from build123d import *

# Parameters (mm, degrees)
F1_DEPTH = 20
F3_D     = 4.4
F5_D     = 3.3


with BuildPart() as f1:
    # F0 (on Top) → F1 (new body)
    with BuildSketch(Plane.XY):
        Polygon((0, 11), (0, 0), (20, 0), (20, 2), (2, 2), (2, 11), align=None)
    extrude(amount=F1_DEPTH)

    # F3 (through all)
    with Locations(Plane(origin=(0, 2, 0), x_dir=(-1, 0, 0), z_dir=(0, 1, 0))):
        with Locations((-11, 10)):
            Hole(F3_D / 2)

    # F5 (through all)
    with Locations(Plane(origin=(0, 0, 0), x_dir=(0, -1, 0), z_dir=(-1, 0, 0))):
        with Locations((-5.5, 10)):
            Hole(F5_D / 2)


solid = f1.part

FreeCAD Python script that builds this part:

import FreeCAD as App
import Part
import Sketcher

V = App.Vector
Q = App.Units.Quantity


def add_polygon(sketch, points):
    """Adds a closed chain of lines whose ends are joined by coincident constraints."""
    first, n = sketch.GeometryCount, len(points)
    for a, b in zip(points, points[1:] + points[:1]):
        sketch.addGeometry(Part.LineSegment(App.Vector(*a, 0), App.Vector(*b, 0)), False)
    for i in range(n):
        sketch.addConstraint(Sketcher.Constraint("Coincident", first + i, 2, first + (i + 1) % n, 1))

doc = App.newDocument("Part")
params = doc.addObject("Spreadsheet::Sheet", "Params")
for row, (alias, value) in enumerate([
    ("sketch1_width", "20 mm"),
    ("sketch1_width2", "18 mm"),
    ("sketch1_height", "11 mm"),
    ("pad1_length", "20 mm"),
    ("sketch2_diameter", "4.4 mm"),
    ("hole_diameter", "4.4 mm"),
    ("sketch3_diameter", "3.3 mm"),
    ("hole2_diameter", "3.3 mm"),
], start=1):
    params.set(f"A{row}", alias)
    params.set(f"B{row}", "=" + value)
    params.setAlias(f"B{row}", alias)

body = doc.addObject("PartDesign::Body", "Body")

# Sketch on XY plane
sketch1 = body.newObject("Sketcher::SketchObject", "Sketch")
sketch1.AttachmentSupport = (doc.getObject("XY_Plane"), [""])
sketch1.MapMode = "FlatFace"
add_polygon(sketch1, [(0, 11), (0, 0), (20, 0), (20, 2), (2, 2), (2, 11)])  # lines 0-5
sketch1.addConstraint([
    Sketcher.Constraint("Vertical", 0),
    Sketcher.Constraint("Horizontal", 1),
    Sketcher.Constraint("Vertical", 2),
    Sketcher.Constraint("Horizontal", 3),
    Sketcher.Constraint("Vertical", 4),
    Sketcher.Constraint("Horizontal", 5),
    Sketcher.Constraint("Coincident", 0, 2, -1, 1),
    Sketcher.Constraint("Equal", 5, 2),
    Sketcher.Constraint("DistanceX", 1, 1, 1, 2, Q("20 mm")),
    Sketcher.Constraint("DistanceX", 3, 2, 3, 1, Q("18 mm")),
    Sketcher.Constraint("DistanceY", 0, 2, 0, 1, Q("11 mm")),
])
sketch1.setExpression("Constraints[14]", "Params.sketch1_width")
sketch1.setExpression("Constraints[15]", "Params.sketch1_width2")
sketch1.setExpression("Constraints[16]", "Params.sketch1_height")
pad1 = body.newObject("PartDesign::Pad", "Pad")
pad1.Profile = sketch1
pad1.setExpression("Length", "Params.pad1_length")

# Sketch on XZ plane
sketch2 = body.newObject("Sketcher::SketchObject", "Sketch001")
sketch2.AttachmentSupport = (doc.getObject("XZ_Plane"), [""])
sketch2.MapMode = "FlatFace"
sketch2.AttachmentOffset = App.Placement(V(0, 0, -2), App.Rotation())
sketch2.addGeometry(Part.Circle(V(11, 10, 0), V(0, 0, 1), 2.2), False)
sketch2.addConstraint([
    Sketcher.Constraint("Diameter", 0, Q("4.4 mm")),
    Sketcher.Constraint("DistanceX", -1, 1, 0, 3, Q("11 mm")),
    Sketcher.Constraint("DistanceY", -1, 1, 0, 3, Q("10 mm")),
])
sketch2.setExpression("Constraints[0]", "Params.sketch2_diameter")
doc.recompute()
hole = body.newObject("PartDesign::Hole", "Hole")
hole.Profile = sketch2
hole.ThreadType = "None"
hole.setExpression("Diameter", "Params.hole_diameter")
hole.DepthType = "ThroughAll"
hole.Reversed = True

# Sketch on YZ plane
sketch3 = body.newObject("Sketcher::SketchObject", "Sketch002")
sketch3.AttachmentSupport = (doc.getObject("YZ_Plane"), [""])
sketch3.MapMode = "FlatFace"
sketch3.addGeometry(Part.Circle(V(5.5, 10, 0), V(0, 0, 1), 1.65), False)
sketch3.addConstraint([
    Sketcher.Constraint("Diameter", 0, Q("3.3 mm")),
    Sketcher.Constraint("DistanceY", -1, 1, 0, 3, Q("10 mm")),
    Sketcher.Constraint("DistanceX", -1, 1, 0, 3, Q("5.5 mm")),
])
sketch3.setExpression("Constraints[0]", "Params.sketch3_diameter")
doc.recompute()
hole2 = body.newObject("PartDesign::Hole", "Hole001")
hole2.Profile = sketch3
hole2.ThreadType = "None"
hole2.setExpression("Diameter", "Params.hole2_diameter")
hole2.DepthType = "ThroughAll"
hole2.Reversed = True

doc.recompute()
